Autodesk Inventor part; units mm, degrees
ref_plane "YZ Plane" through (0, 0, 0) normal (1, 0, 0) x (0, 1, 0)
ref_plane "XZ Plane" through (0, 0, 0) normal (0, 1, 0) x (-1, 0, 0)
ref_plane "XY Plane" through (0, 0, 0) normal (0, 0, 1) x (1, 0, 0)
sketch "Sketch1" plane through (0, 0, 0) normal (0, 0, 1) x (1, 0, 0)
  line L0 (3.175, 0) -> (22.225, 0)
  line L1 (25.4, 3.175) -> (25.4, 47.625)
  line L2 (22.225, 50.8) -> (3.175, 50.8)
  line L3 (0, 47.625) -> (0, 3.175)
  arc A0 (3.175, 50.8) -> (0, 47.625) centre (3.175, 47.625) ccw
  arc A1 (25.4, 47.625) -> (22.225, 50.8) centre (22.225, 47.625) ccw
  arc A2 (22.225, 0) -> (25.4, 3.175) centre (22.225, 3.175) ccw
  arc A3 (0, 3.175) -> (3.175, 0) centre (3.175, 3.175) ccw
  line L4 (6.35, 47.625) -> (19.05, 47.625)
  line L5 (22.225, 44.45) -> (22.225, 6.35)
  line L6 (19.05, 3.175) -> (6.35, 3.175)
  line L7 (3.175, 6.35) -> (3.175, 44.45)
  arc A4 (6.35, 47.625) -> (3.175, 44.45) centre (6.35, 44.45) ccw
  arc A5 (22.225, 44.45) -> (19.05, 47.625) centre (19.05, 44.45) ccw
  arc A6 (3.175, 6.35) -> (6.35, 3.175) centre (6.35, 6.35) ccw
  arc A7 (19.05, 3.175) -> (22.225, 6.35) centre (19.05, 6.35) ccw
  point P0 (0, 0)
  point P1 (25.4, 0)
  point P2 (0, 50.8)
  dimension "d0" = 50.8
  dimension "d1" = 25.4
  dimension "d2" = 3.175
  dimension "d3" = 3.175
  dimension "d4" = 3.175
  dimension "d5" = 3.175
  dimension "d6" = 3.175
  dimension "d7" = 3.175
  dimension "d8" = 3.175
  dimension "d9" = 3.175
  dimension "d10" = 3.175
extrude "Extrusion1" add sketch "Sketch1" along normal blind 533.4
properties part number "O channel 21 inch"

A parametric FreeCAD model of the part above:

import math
import FreeCAD as App
import Part
import Sketcher
Q = App.Units.Quantity

doc = App.newDocument("Part")
body = doc.addObject("PartDesign::Body", "Body")

# Sketch on XY plane
sketch1 = body.newObject("Sketcher::SketchObject", "Sketch")
sketch1.AttachmentSupport = (doc.getObject("XY_Plane"), [""])
sketch1.MapMode = "FlatFace"
sketch1.addGeometry([
    Part.ArcOfCircle(Part.Circle(App.Vector(3.175, 3.175, 0), App.Vector(0, 0, 1), 3.175), math.radians(180), math.radians(270)),  # 0
    Part.LineSegment(App.Vector(3.175, 0, 0), App.Vector(22.225, 0, 0)),  # 1
    Part.ArcOfCircle(Part.Circle(App.Vector(22.225, 3.175, 0), App.Vector(0, 0, 1), 3.175), math.radians(-90), math.radians(0)),  # 2
    Part.LineSegment(App.Vector(25.4, 3.175, 0), App.Vector(25.4, 47.625, 0)),  # 3
    Part.ArcOfCircle(Part.Circle(App.Vector(22.225, 47.625, 0), App.Vector(0, 0, 1), 3.175), math.radians(0), math.radians(90)),  # 4
    Part.LineSegment(App.Vector(22.225, 50.8, 0), App.Vector(3.175, 50.8, 0)),  # 5
    Part.ArcOfCircle(Part.Circle(App.Vector(3.175, 47.625, 0), App.Vector(0, 0, 1), 3.175), math.radians(90), math.radians(180)),  # 6
    Part.LineSegment(App.Vector(0, 47.625, 0), App.Vector(0, 3.175, 0)),  # 7
    Part.ArcOfCircle(Part.Circle(App.Vector(6.35, 44.45, 0), App.Vector(0, 0, 1), 3.175), math.radians(90), math.radians(180)),  # 8
    Part.LineSegment(App.Vector(6.35, 47.625, 0), App.Vector(19.05, 47.625, 0)),  # 9
    Part.ArcOfCircle(Part.Circle(App.Vector(19.05, 44.45, 0), App.Vector(0, 0, 1), 3.175), math.radians(0), math.radians(90)),  # 10
    Part.LineSegment(App.Vector(22.225, 44.45, 0), App.Vector(22.225, 6.35, 0)),  # 11
    Part.ArcOfCircle(Part.Circle(App.Vector(19.05, 6.35, 0), App.Vector(0, 0, 1), 3.175), math.radians(-90), math.radians(0)),  # 12
    Part.LineSegment(App.Vector(19.05, 3.175, 0), App.Vector(6.35, 3.175, 0)),  # 13
    Part.ArcOfCircle(Part.Circle(App.Vector(6.35, 6.35, 0), App.Vector(0, 0, 1), 3.175), math.radians(180), math.radians(270)),  # 14
    Part.LineSegment(App.Vector(3.175, 6.35, 0), App.Vector(3.175, 44.45, 0)),  # 15
], False)
sketch1.addConstraint([
    Sketcher.Constraint("Tangent", 0, 2, 1, 1),
    Sketcher.Constraint("Tangent", 1, 2, 2, 1),
    Sketcher.Constraint("Tangent", 2, 2, 3, 1),
    Sketcher.Constraint("Tangent", 3, 2, 4, 1),
    Sketcher.Constraint("Tangent", 4, 2, 5, 1),
    Sketcher.Constraint("Tangent", 5, 2, 6, 1),
    Sketcher.Constraint("Tangent", 6, 2, 7, 1),
    Sketcher.Constraint("Tangent", 7, 2, 0, 1),
    Sketcher.Constraint("Tangent", 8, 1, 9, 1),
    Sketcher.Constraint("Tangent", 9, 2, 10, 2),
    Sketcher.Constraint("Tangent", 10, 1, 11, 1),
    Sketcher.Constraint("Tangent", 11, 2, 12, 2),
    Sketcher.Constraint("Tangent", 12, 1, 13, 1),
    Sketcher.Constraint("Tangent", 13, 2, 14, 2),
    Sketcher.Constraint("Tangent", 14, 1, 15, 1),
    Sketcher.Constraint("Tangent", 15, 2, 8, 2),
    Sketcher.Constraint("Horizontal", 1),
    Sketcher.Constraint("Vertical", 3),
    Sketcher.Constraint("Horizontal", 5),
    Sketcher.Constraint("Vertical", 7),
    Sketcher.Constraint("Horizontal", 9),
    Sketcher.Constraint("Vertical", 11),
    Sketcher.Constraint("Horizontal", 13),
    Sketcher.Constraint("Vertical", 15),
    Sketcher.Constraint("Equal", 0, 2),
    Sketcher.Constraint("Equal", 2, 4),
    Sketcher.Constraint("Equal", 4, 6),
    Sketcher.Constraint("Equal", 6, 8),
    Sketcher.Constraint("Equal", 8, 10),
    Sketcher.Constraint("Equal", 10, 12),
    Sketcher.Constraint("Equal", 12, 14),
    Sketcher.Constraint("PointOnObject", 0, 2, -1),
    Sketcher.Constraint("PointOnObject", 6, 2, -2),
    Sketcher.Constraint("Horizontal", 6, 2, 8, 1),
    Sketcher.Constraint("Horizontal", 7, 2, 12, 1),
    Sketcher.Constraint("Vertical", 4, 2, 10, 1),
    Sketcher.Constraint("Vertical", 5, 2, 14, 1),
    Sketcher.Constraint("DistanceX", -1, 1, 2, 2, Q("1 in")),
    Sketcher.Constraint("DistanceY", -1, 1, 4, 2, Q("2 in")),
    Sketcher.Constraint("Radius", 0, Q("0.125 in")),
])
pad1 = body.newObject("PartDesign::Pad", "Pad")
pad1.Profile = sketch1
pad1.Length = Q("21 in")

doc.recompute()
